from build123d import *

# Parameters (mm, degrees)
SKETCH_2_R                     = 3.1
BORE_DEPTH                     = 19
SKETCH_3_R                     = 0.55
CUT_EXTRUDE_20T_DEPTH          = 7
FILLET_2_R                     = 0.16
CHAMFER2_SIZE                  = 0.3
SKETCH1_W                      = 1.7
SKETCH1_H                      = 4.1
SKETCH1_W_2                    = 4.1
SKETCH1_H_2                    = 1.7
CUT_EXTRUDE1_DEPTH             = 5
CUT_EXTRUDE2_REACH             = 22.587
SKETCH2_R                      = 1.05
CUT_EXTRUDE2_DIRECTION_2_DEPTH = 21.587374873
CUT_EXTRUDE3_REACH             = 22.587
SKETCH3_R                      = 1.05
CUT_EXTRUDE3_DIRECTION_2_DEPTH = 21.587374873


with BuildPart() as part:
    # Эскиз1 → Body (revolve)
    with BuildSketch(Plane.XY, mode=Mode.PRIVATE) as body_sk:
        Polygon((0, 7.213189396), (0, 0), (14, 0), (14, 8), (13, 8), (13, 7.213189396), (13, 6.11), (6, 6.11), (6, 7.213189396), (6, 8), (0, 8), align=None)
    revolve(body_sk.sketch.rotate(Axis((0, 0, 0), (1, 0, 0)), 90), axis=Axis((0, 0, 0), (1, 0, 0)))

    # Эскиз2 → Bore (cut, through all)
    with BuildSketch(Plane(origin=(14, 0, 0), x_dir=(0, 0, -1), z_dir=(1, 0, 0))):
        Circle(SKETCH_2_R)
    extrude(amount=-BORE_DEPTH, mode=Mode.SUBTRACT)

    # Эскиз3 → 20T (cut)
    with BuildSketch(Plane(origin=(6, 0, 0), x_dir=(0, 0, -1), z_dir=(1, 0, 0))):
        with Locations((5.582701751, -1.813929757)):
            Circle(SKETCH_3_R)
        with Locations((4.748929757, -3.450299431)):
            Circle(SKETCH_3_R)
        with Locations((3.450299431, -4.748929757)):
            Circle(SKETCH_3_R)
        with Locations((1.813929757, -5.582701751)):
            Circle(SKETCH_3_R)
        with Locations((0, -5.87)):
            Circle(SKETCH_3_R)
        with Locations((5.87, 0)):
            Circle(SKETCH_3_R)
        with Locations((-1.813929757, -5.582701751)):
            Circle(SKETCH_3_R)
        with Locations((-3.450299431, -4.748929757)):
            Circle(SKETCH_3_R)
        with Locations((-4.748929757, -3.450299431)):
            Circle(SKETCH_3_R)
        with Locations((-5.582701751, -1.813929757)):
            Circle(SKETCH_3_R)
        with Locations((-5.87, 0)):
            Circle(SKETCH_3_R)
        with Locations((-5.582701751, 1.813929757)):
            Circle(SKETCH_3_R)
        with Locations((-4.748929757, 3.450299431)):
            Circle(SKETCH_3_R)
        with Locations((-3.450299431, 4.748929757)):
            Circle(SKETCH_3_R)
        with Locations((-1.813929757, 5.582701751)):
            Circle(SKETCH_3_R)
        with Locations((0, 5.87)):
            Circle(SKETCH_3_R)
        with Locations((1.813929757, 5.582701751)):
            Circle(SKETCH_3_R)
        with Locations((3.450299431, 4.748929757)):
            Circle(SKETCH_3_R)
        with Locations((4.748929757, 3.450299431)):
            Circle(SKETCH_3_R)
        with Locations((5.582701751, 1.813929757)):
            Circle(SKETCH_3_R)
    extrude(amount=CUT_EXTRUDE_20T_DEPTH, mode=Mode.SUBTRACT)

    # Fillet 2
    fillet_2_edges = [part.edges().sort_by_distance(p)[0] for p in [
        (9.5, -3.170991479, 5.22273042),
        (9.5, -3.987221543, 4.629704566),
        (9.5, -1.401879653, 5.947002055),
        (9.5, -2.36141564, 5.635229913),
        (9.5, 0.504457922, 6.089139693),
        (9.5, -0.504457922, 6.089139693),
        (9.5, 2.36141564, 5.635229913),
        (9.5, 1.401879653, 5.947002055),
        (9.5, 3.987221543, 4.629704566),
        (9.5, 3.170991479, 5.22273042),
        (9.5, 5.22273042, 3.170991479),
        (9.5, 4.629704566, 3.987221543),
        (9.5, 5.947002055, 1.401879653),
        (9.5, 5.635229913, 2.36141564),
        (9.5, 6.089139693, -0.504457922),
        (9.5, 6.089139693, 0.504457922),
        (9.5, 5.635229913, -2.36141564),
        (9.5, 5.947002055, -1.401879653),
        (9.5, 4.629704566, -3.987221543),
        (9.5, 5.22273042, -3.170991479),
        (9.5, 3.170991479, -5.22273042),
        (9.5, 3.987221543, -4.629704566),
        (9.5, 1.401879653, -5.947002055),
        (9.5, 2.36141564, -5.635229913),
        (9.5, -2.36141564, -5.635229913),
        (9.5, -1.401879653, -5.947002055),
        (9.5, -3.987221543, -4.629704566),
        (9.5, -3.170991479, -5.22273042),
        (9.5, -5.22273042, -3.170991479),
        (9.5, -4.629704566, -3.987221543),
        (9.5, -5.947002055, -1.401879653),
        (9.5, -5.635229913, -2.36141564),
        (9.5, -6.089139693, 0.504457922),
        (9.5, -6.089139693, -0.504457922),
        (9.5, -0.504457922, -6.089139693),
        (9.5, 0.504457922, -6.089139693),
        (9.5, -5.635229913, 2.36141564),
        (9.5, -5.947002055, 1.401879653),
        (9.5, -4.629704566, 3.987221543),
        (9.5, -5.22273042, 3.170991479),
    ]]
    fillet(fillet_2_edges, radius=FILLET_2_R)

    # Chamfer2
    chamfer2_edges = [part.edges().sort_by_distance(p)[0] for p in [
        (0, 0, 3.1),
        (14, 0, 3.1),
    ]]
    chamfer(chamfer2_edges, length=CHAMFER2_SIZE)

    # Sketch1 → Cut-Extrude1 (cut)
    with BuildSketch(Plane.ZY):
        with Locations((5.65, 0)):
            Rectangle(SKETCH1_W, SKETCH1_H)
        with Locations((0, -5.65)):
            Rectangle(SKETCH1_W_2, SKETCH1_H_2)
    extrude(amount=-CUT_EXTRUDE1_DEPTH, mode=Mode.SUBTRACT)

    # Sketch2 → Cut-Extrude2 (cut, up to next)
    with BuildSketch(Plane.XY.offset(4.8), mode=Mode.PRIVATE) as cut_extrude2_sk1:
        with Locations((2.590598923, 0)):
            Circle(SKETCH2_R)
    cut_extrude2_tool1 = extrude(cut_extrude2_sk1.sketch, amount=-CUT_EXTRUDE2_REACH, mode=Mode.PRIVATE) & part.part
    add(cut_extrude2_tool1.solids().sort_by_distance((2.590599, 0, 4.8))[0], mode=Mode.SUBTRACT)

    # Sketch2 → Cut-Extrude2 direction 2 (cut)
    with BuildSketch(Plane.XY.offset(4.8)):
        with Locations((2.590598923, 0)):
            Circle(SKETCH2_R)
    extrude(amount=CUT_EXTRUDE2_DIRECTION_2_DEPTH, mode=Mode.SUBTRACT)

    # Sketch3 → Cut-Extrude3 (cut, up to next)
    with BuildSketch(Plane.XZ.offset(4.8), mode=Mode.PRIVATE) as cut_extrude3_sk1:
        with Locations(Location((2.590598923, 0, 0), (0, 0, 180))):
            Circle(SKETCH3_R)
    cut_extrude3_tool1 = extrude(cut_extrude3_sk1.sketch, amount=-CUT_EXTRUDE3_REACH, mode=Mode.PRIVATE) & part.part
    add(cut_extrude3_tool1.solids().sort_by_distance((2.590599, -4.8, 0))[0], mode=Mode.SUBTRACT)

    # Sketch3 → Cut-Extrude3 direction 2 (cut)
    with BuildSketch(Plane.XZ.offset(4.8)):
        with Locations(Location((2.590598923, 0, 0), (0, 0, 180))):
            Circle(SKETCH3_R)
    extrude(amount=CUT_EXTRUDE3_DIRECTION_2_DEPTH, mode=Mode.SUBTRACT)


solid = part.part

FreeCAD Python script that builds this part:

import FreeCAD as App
import Part
import Sketcher

V = App.Vector
Q = App.Units.Quantity


def edges_at(feature, points):
    """Names of the edges that pass closest to the given points."""
    edges = feature.Shape.Edges
    near = lambda p: min(range(len(edges)), key=lambda i: edges[i].distToShape(Part.Vertex(*p))[0])
    return sorted({f"Edge{near(p) + 1}" for p in points})


def add_polygon(sketch, points):
    """Adds a closed chain of lines whose ends are joined by coincident constraints."""
    first, n = sketch.GeometryCount, len(points)
    for a, b in zip(points, points[1:] + points[:1]):
        sketch.addGeometry(Part.LineSegment(App.Vector(*a, 0), App.Vector(*b, 0)), False)
    for i in range(n):
        sketch.addConstraint(Sketcher.Constraint("Coincident", first + i, 2, first + (i + 1) % n, 1))

doc = App.newDocument("Part")
params = doc.addObject("Spreadsheet::Sheet", "Params")
for row, (alias, value) in enumerate([
    ("sketch1_width", "14 mm"),
    ("sketch1_width2", "1 mm"),
    ("sketch1_width3", "7 mm"),
    ("sketch1_height", "8 mm"),
    ("sketch1_height2", "1.89 mm"),
    ("revolution_angle", "360 deg"),
    ("sketch2_diameter", "6.2 mm"),
    ("sketch3_diameter", "1.1 mm"),
    ("pocket2_length", "7 mm"),
    ("fillet_radius", "0.16 mm"),
    ("chamfer_size", "0.3 mm"),
    ("sketch4_width", "4.1 mm"),
    ("sketch4_width2", "1.7 mm"),
    ("pocket3_length", "5 mm"),
    ("sketch5_diameter", "2.1 mm"),
    ("sketch6_diameter", "2.1 mm"),
    ("pocket5_length", "21.587375 mm"),
    ("sketch7_diameter", "2.1 mm"),
    ("sketch8_diameter", "2.1 mm"),
    ("pocket7_length", "21.587375 mm"),
], start=1):
    params.set(f"A{row}", alias)
    params.set(f"B{row}", "=" + value)
    params.setAlias(f"B{row}", alias)

body = doc.addObject("PartDesign::Body", "Body")

# Sketch on XY plane
sketch1 = body.newObject("Sketcher::SketchObject", "Sketch")
sketch1.AttachmentSupport = (doc.getObject("XY_Plane"), [""])
sketch1.MapMode = "FlatFace"
add_polygon(sketch1, [(0, 0), (14, 0), (14, 8), (13, 8), (13, 6.1), (6, 6.1), (6, 8), (0, 8)])  # lines 0-7
sketch1.addConstraint(Sketcher.Constraint("Horizontal", 0))
sketch1.addConstraint(Sketcher.Constraint("Vertical", 1))
sketch1.addConstraint(Sketcher.Constraint("Horizontal", 2))
sketch1.addConstraint(Sketcher.Constraint("Vertical", 3))
sketch1.addConstraint(Sketcher.Constraint("Horizontal", 4))
sketch1.addConstraint(Sketcher.Constraint("Vertical", 5))
sketch1.addConstraint(Sketcher.Constraint("Horizontal", 6))
sketch1.addConstraint(Sketcher.Constraint("Vertical", 7))
sketch1.addConstraint(Sketcher.Constraint("Coincident", 7, 2, -1, 1))
sketch1.addConstraint(Sketcher.Constraint("Horizontal", 2, 2, 5, 2))
sketch1.addConstraint(Sketcher.Constraint("DistanceX", 0, 1, 0, 2, Q("14 mm")))
sketch1.addConstraint(Sketcher.Constraint("DistanceX", 2, 2, 2, 1, Q("1 mm")))
sketch1.addConstraint(Sketcher.Constraint("DistanceX", 4, 2, 4, 1, Q("7 mm")))
sketch1.addConstraint(Sketcher.Constraint("DistanceY", 1, 1, 1, 2, Q("8 mm")))
sketch1.addConstraint(Sketcher.Constraint("DistanceY", 3, 2, 3, 1, Q("1.89 mm")))
sketch1.setExpression("Constraints[18]", "Params.sketch1_width")
sketch1.setExpression("Constraints[19]", "Params.sketch1_width2")
sketch1.setExpression("Constraints[20]", "Params.sketch1_width3")
sketch1.setExpression("Constraints[21]", "Params.sketch1_height")
sketch1.setExpression("Constraints[22]", "Params.sketch1_height2")
revolution = body.newObject("PartDesign::Revolution", "Revolution")
revolution.Profile = sketch1
revolution.ReferenceAxis = (sketch1, ["H_Axis"])
revolution.setExpression("Angle", "Params.revolution_angle")

# Sketch on YZ plane
sketch2 = body.newObject("Sketcher::SketchObject", "Sketch001")
sketch2.AttachmentSupport = (doc.getObject("YZ_Plane"), [""])
sketch2.MapMode = "FlatFace"
sketch2.AttachmentOffset = App.Placement(V(0, 0, 14), App.Rotation())
sketch2.addGeometry(Part.Circle(V(0, 0, 0), V(0, 0, 1), 3.1), False)
sketch2.addConstraint(Sketcher.Constraint("Coincident", 0, 3, -1, 1))
sketch2.addConstraint(Sketcher.Constraint("Diameter", 0, Q("6.2 mm")))
sketch2.setExpression("Constraints[1]", "Params.sketch2_diameter")
pocket1 = body.newObject("PartDesign::Pocket", "Pocket")
pocket1.Profile = sketch2
pocket1.Type = "ThroughAll"

# Sketch on YZ plane
sketch3 = body.newObject("Sketcher::SketchObject", "Sketch002")
sketch3.AttachmentSupport = (doc.getObject("YZ_Plane"), [""])
sketch3.MapMode = "FlatFace"
sketch3.AttachmentOffset = App.Placement(V(0, 0, 6), App.Rotation())
sketch3.addGeometry(Part.Circle(V(-1.8, -5.6, 0), V(0, 0, 1), 0.6), False)
sketch3.addGeometry(Part.Circle(V(-3.5, -4.7, 0), V(0, 0, 1), 0.6), False)
sketch3.addGeometry(Part.Circle(V(-4.7, -3.5, 0), V(0, 0, 1), 0.6), False)
sketch3.addGeometry(Part.Circle(V(-5.6, -1.8, 0), V(0, 0, 1), 0.6), False)
sketch3.addGeometry(Part.Circle(V(-5.9, 0, 0), V(0, 0, 1), 0.6), False)
sketch3.addGeometry(Part.Circle(V(0, -5.9, 0), V(0, 0, 1), 0.6), False)
sketch3.addGeometry(Part.Circle(V(-5.6, 1.8, 0), V(0, 0, 1), 0.6), False)
sketch3.addGeometry(Part.Circle(V(-4.7, 3.5, 0), V(0, 0, 1), 0.6), False)
sketch3.addGeometry(Part.Circle(V(-3.5, 4.7, 0), V(0, 0, 1), 0.6), False)
sketch3.addGeometry(Part.Circle(V(-1.8, 5.6, 0), V(0, 0, 1), 0.6), False)
sketch3.addGeometry(Part.Circle(V(0, 5.9, 0), V(0, 0, 1), 0.6), False)
sketch3.addGeometry(Part.Circle(V(1.8, 5.6, 0), V(0, 0, 1), 0.6), False)
sketch3.addGeometry(Part.Circle(V(3.5, 4.7, 0), V(0, 0, 1), 0.6), False)
sketch3.addGeometry(Part.Circle(V(4.7, 3.5, 0), V(0, 0, 1), 0.6), False)
sketch3.addGeometry(Part.Circle(V(5.6, 1.8, 0), V(0, 0, 1), 0.6), False)
sketch3.addGeometry(Part.Circle(V(5.9, 0, 0), V(0, 0, 1), 0.6), False)
sketch3.addGeometry(Part.Circle(V(5.6, -1.8, 0), V(0, 0, 1), 0.6), False)
sketch3.addGeometry(Part.Circle(V(4.7, -3.5, 0), V(0, 0, 1), 0.6), False)
sketch3.addGeometry(Part.Circle(V(3.5, -4.7, 0), V(0, 0, 1), 0.6), False)
sketch3.addGeometry(Part.Circle(V(1.8, -5.6, 0), V(0, 0, 1), 0.6), False)
sketch3.addConstraint(Sketcher.Constraint("Equal", 0, 1))
sketch3.addConstraint(Sketcher.Constraint("Equal", 1, 2))
sketch3.addConstraint(Sketcher.Constraint("Equal", 2, 3))
sketch3.addConstraint(Sketcher.Constraint("Equal", 3, 4))
sketch3.addConstraint(Sketcher.Constraint("Equal", 4, 5))
sketch3.addConstraint(Sketcher.Constraint("Equal", 5, 6))
sketch3.addConstraint(Sketcher.Constraint("Equal", 6, 7))
sketch3.addConstraint(Sketcher.Constraint("Equal", 7, 8))
sketch3.addConstraint(Sketcher.Constraint("Equal", 8, 9))
sketch3.addConstraint(Sketcher.Constraint("Equal", 9, 10))
sketch3.addConstraint(Sketcher.Constraint("Equal", 10, 11))
sketch3.addConstraint(Sketcher.Constraint("Equal", 11, 12))
sketch3.addConstraint(Sketcher.Constraint("Equal", 12, 13))
sketch3.addConstraint(Sketcher.Constraint("Equal", 13, 14))
sketch3.addConstraint(Sketcher.Constraint("Equal", 14, 15))
sketch3.addConstraint(Sketcher.Constraint("Equal", 15, 16))
sketch3.addConstraint(Sketcher.Constraint("Equal", 16, 17))
sketch3.addConstraint(Sketcher.Constraint("Equal", 17, 18))
sketch3.addConstraint(Sketcher.Constraint("Equal", 18, 19))
sketch3.addConstraint(Sketcher.Constraint("Symmetric", 5, 3, 10, 3, -1, 1))
sketch3.addConstraint(Sketcher.Constraint("Symmetric", 0, 3, 11, 3, -1, 1))
sketch3.addConstraint(Sketcher.Constraint("Symmetric", 1, 3, 12, 3, -1, 1))
sketch3.addConstraint(Sketcher.Constraint("Symmetric", 2, 3, 13, 3, -1, 1))
sketch3.addConstraint(Sketcher.Constraint("Symmetric", 3, 3, 14, 3, -1, 1))
sketch3.addConstraint(Sketcher.Constraint("Symmetric", 4, 3, 15, 3, -1, 1))
sketch3.addConstraint(Sketcher.Constraint("Symmetric", 6, 3, 16, 3, -1, 1))
sketch3.addConstraint(Sketcher.Constraint("Symmetric", 7, 3, 17, 3, -1, 1))
sketch3.addConstraint(Sketcher.Constraint("Symmetric", 8, 3, 18, 3, -1, 1))
sketch3.addConstraint(Sketcher.Constraint("Symmetric", 9, 3, 19, 3, -1, 1))
sketch3.addConstraint(Sketcher.Constraint("Symmetric", 9, 3, 11, 3, -2))
sketch3.addConstraint(Sketcher.Constraint("Symmetric", 8, 3, 12, 3, -2))
sketch3.addConstraint(Sketcher.Constraint("Symmetric", 7, 3, 13, 3, -2))
sketch3.addConstraint(Sketcher.Constraint("Symmetric", 6, 3, 14, 3, -2))
sketch3.addConstraint(Sketcher.Constraint("PointOnObject", 4, 3, -1))
sketch3.addConstraint(Sketcher.Constraint("PointOnObject", 5, 3, -2))
sketch3.addConstraint(Sketcher.Constraint("Diameter", 0, Q("1.1 mm")))
sketch3.addConstraint(Sketcher.Constraint("DistanceX", 4, 3, -1, 1, Q("5.87 mm")))
sketch3.addConstraint(Sketcher.Constraint("DistanceY", 5, 3, -1, 1, Q("5.87 mm")))
sketch3.addConstraint(Sketcher.Constraint("DistanceX", 2, 3, 0, 3, Q("2.935 mm")))
sketch3.addConstraint(Sketcher.Constraint("DistanceY", 1, 3, 3, 3, Q("2.935 mm")))
sketch3.addConstraint(Sketcher.Constraint("DistanceY", 0, 3, -1, 1, Q("5.582702 mm")))
sketch3.addConstraint(Sketcher.Constraint("DistanceX", 1, 3, -1, 1, Q("3.450299 mm")))
sketch3.addConstraint(Sketcher.Constraint("DistanceY", 2, 3, -1, 1, Q("3.450299 mm")))
sketch3.addConstraint(Sketcher.Constraint("DistanceX", 3, 3, -1, 1, Q("5.582702 mm")))
sketch3.addConstraint(Sketcher.Constraint("DistanceX", 0, 3, -1, 1, Q("1.81393 mm")))
sketch3.addConstraint(Sketcher.Constraint("DistanceY", 1, 3, -1, 1, Q("4.74893 mm")))
sketch3.setExpression("Constraints[35]", "Params.sketch3_diameter")
pocket2 = body.newObject("PartDesign::Pocket", "Pocket001")
pocket2.Profile = sketch3
pocket2.setExpression("Length", "Params.pocket2_length")
pocket2.Reversed = True
doc.recompute()

fillet = body.newObject("PartDesign::Fillet", "Fillet")
fillet.Base = (pocket2, edges_at(pocket2, [
    (9.5, -3.171, 5.223),
    (9.5, -3.987, 4.63),
    (9.5, -1.402, 5.947),
    (9.5, -2.361, 5.635),
    (9.5, 0.504, 6.089),
    (9.5, -0.504, 6.089),
    (9.5, 2.361, 5.635),
    (9.5, 1.402, 5.947),
    (9.5, 3.987, 4.63),
    (9.5, 3.171, 5.223),
    (9.5, 5.223, 3.171),
    (9.5, 4.63, 3.987),
    (9.5, 5.947, 1.402),
    (9.5, 5.635, 2.361),
    (9.5, 6.089, -0.504),
    (9.5, 6.089, 0.504),
    (9.5, 5.635, -2.361),
    (9.5, 5.947, -1.402),
    (9.5, 4.63, -3.987),
    (9.5, 5.223, -3.171),
    (9.5, 3.171, -5.223),
    (9.5, 3.987, -4.63),
    (9.5, 1.402, -5.947),
    (9.5, 2.361, -5.635),
    (9.5, -2.361, -5.635),
    (9.5, -1.402, -5.947),
    (9.5, -3.987, -4.63),
    (9.5, -3.171, -5.223),
    (9.5, -5.223, -3.171),
    (9.5, -4.63, -3.987),
    (9.5, -5.947, -1.402),
    (9.5, -5.635, -2.361),
    (9.5, -6.089, 0.504),
    (9.5, -6.089, -0.504),
    (9.5, -0.504, -6.089),
    (9.5, 0.504, -6.089),
    (9.5, -5.635, 2.361),
    (9.5, -5.947, 1.402),
    (9.5, -4.63, 3.987),
    (9.5, -5.223, 3.171),
]))
fillet.setExpression("Radius", "Params.fillet_radius")
doc.recompute()

chamfer = body.newObject("PartDesign::Chamfer", "Chamfer")
chamfer.Base = (fillet, edges_at(fillet, [(0, 0, 3.1), (14, 0, 3.1)]))
chamfer.setExpression("Size", "Params.chamfer_size")

# Sketch on YZ plane
sketch4 = body.newObject("Sketcher::SketchObject", "Sketch003")
sketch4.AttachmentSupport = (doc.getObject("YZ_Plane"), [""])
sketch4.MapMode = "FlatFace"
add_polygon(sketch4, [(2, 4.8), (-2, 4.8), (-2, 6.5), (2, 6.5)])  # lines 0-3
add_polygon(sketch4, [(-4.8, -2), (-6.5, -2), (-6.5, 2), (-4.8, 2)])  # lines 4-7
sketch4.addConstraint(Sketcher.Constraint("Horizontal", 0))
sketch4.addConstraint(Sketcher.Constraint("Vertical", 1))
sketch4.addConstraint(Sketcher.Constraint("Horizontal", 2))
sketch4.addConstraint(Sketcher.Constraint("Vertical", 3))
sketch4.addConstraint(Sketcher.Constraint("Horizontal", 4))
sketch4.addConstraint(Sketcher.Constraint("Vertical", 5))
sketch4.addConstraint(Sketcher.Constraint("Horizontal", 6))
sketch4.addConstraint(Sketcher.Constraint("Vertical", 7))
sketch4.addConstraint(Sketcher.Constraint("Equal", 6, 1))
sketch4.addConstraint(Sketcher.Constraint("Equal", 2, 5))
sketch4.addConstraint(Sketcher.Constraint("DistanceX", 0, 2, 0, 1, Q("4.1 mm")))
sketch4.addConstraint(Sketcher.Constraint("DistanceX", 4, 2, 4, 1, Q("1.7 mm")))
sketch4.addConstraint(Sketcher.Constraint("DistanceY", -1, 1, 0, 2, Q("4.8 mm")))
sketch4.addConstraint(Sketcher.Constraint("DistanceX", 4, 2, -1, 1, Q("6.5 mm")))
sketch4.addConstraint(Sketcher.Constraint("DistanceX", 0, 2, -1, 1, Q("2.05 mm")))
sketch4.addConstraint(Sketcher.Constraint("DistanceY", 4, 2, -1, 1, Q("2.05 mm")))
sketch4.setExpression("Constraints[18]", "Params.sketch4_width")
sketch4.setExpression("Constraints[19]", "Params.sketch4_width2")
pocket3 = body.newObject("PartDesign::Pocket", "Pocket002")
pocket3.Profile = sketch4
pocket3.setExpression("Length", "Params.pocket3_length")
pocket3.Reversed = True

# Sketch on XY plane
sketch5 = body.newObject("Sketcher::SketchObject", "Sketch004")
sketch5.AttachmentSupport = (doc.getObject("XY_Plane"), [""])
sketch5.MapMode = "FlatFace"
sketch5.AttachmentOffset = App.Placement(V(0, 0, 4.8), App.Rotation())
sketch5.addGeometry(Part.Circle(V(2.6, 0, 0), V(0, 0, 1), 1.1), False)
sketch5.addConstraint(Sketcher.Constraint("PointOnObject", 0, 3, -1))
sketch5.addConstraint(Sketcher.Constraint("Diameter", 0, Q("2.1 mm")))
sketch5.addConstraint(Sketcher.Constraint("DistanceX", -1, 1, 0, 3, Q("2.590599 mm")))
sketch5.setExpression("Constraints[1]", "Params.sketch5_diameter")
pocket4 = body.newObject("PartDesign::Pocket", "Pocket003")
pocket4.Profile = sketch5
pocket4.Type = "UpToFirst"

# Sketch on XY plane
sketch6 = body.newObject("Sketcher::SketchObject", "Sketch005")
sketch6.AttachmentSupport = (doc.getObject("XY_Plane"), [""])
sketch6.MapMode = "FlatFace"
sketch6.AttachmentOffset = App.Placement(V(0, 0, 4.8), App.Rotation())
sketch6.addGeometry(Part.Circle(V(2.6, 0, 0), V(0, 0, 1), 1.1), False)
sketch6.addConstraint(Sketcher.Constraint("PointOnObject", 0, 3, -1))
sketch6.addConstraint(Sketcher.Constraint("Diameter", 0, Q("2.1 mm")))
sketch6.addConstraint(Sketcher.Constraint("DistanceX", -1, 1, 0, 3, Q("2.590599 mm")))
sketch6.setExpression("Constraints[1]", "Params.sketch6_diameter")
pocket5 = body.newObject("PartDesign::Pocket", "Pocket004")
pocket5.Profile = sketch6
pocket5.setExpression("Length", "Params.pocket5_length")
pocket5.Reversed = True

# Sketch on XZ plane
sketch7 = body.newObject("Sketcher::SketchObject", "Sketch006")
sketch7.AttachmentSupport = (doc.getObject("XZ_Plane"), [""])
sketch7.MapMode = "FlatFace"
sketch7.AttachmentOffset = App.Placement(V(0, 0, 4.8), App.Rotation())
sketch7.addGeometry(Part.Circle(V(2.6, 0, 0), V(0, 0, 1), 1.1), False)
sketch7.addConstraint(Sketcher.Constraint("PointOnObject", 0, 3, -1))
sketch7.addConstraint(Sketcher.Constraint("Diameter", 0, Q("2.1 mm")))
sketch7.addConstraint(Sketcher.Constraint("DistanceX", -1, 1, 0, 3, Q("2.590599 mm")))
sketch7.setExpression("Constraints[1]", "Params.sketch7_diameter")
pocket6 = body.newObject("PartDesign::Pocket", "Pocket005")
pocket6.Profile = sketch7
pocket6.Type = "UpToFirst"

# Sketch on XZ plane
sketch8 = body.newObject("Sketcher::SketchObject", "Sketch007")
sketch8.AttachmentSupport = (doc.getObject("XZ_Plane"), [""])
sketch8.MapMode = "FlatFace"
sketch8.AttachmentOffset = App.Placement(V(0, 0, 4.8), App.Rotation())
sketch8.addGeometry(Part.Circle(V(2.6, 0, 0), V(0, 0, 1), 1.1), False)
sketch8.addConstraint(Sketcher.Constraint("PointOnObject", 0, 3, -1))
sketch8.addConstraint(Sketcher.Constraint("Diameter", 0, Q("2.1 mm")))
sketch8.addConstraint(Sketcher.Constraint("DistanceX", -1, 1, 0, 3, Q("2.590599 mm")))
sketch8.setExpression("Constraints[1]", "Params.sketch8_diameter")
pocket7 = body.newObject("PartDesign::Pocket", "Pocket006")
pocket7.Profile = sketch8
pocket7.setExpression("Length", "Params.pocket7_length")
pocket7.Reversed = True

doc.recompute()
